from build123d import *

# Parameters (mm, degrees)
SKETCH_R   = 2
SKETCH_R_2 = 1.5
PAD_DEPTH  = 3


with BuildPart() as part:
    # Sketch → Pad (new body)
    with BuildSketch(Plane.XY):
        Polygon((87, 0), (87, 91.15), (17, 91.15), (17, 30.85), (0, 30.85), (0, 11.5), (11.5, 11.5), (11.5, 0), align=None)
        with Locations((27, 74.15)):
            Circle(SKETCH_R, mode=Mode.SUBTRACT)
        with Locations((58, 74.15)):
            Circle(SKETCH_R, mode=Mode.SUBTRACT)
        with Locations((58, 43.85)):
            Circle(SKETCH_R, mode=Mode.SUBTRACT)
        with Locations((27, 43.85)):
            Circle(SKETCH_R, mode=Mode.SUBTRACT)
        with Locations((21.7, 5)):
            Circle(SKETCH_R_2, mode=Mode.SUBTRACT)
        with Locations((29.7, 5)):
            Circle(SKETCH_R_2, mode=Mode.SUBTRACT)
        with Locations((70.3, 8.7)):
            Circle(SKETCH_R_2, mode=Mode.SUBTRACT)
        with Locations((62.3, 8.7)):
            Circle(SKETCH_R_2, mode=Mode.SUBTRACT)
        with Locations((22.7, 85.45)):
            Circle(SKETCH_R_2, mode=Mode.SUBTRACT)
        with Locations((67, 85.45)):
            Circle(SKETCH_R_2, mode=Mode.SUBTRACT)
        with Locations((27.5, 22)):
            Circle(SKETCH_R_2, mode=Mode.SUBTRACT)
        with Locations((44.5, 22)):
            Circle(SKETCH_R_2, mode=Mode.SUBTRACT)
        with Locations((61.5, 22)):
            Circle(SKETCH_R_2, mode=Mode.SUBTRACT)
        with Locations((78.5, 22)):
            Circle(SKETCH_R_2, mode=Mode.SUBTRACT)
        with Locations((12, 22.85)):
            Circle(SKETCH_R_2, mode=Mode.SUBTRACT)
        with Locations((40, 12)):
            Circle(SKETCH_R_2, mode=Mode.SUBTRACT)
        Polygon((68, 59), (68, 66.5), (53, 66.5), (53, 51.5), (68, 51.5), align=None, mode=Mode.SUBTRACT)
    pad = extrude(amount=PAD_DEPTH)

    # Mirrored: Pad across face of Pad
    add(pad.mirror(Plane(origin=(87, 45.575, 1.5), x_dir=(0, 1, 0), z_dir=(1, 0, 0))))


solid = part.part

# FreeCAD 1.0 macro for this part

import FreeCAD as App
import Part
import Sketcher
from FreeCAD import Vector

doc = App.newDocument("Part")
params = doc.addObject("Spreadsheet::Sheet", "Params")
for row, (alias, value) in enumerate([
    ("sketch1_diameter", "3 mm"),
    ("sketch1_diameter2", "4 mm"),
    ("sketch1_width", "70 mm"),
    ("sketch1_width2", "17 mm"),
    ("sketch1_width3", "15 mm"),
    ("pad1_length", "3 mm"),
], start=1):
    params.set(f"A{row}", alias)
    params.set(f"B{row}", "=" + value)
    params.setAlias(f"B{row}", alias)

body = doc.addObject("PartDesign::Body", "Body")

# Sketch on XY plane
sketch1 = doc.addObject("Sketcher::SketchObject", "Sketch")
body.addObject(sketch1)
sketch1.AttachmentSupport = (doc.XY_Plane, [""])
sketch1.MapMode = "FlatFace"
sketch1.addGeometry([
    Part.LineSegment(Vector(87, 0, 0), Vector(87, 91.2, 0)),  # 0
    Part.LineSegment(Vector(87, 91.2, 0), Vector(17, 91.2, 0)),  # 1
    Part.LineSegment(Vector(17, 91.2, 0), Vector(17, 30.9, 0)),  # 2
    Part.LineSegment(Vector(17, 30.9, 0), Vector(0, 30.9, 0)),  # 3
    Part.LineSegment(Vector(0, 30.9, 0), Vector(0, 11.5, 0)),  # 4
    Part.LineSegment(Vector(0, 11.5, 0), Vector(11.5, 11.5, 0)),  # 5
    Part.LineSegment(Vector(11.5, 11.5, 0), Vector(11.5, 0, 0)),  # 6
    Part.LineSegment(Vector(11.5, 0, 0), Vector(87, 0, 0)),  # 7
    Part.Circle(Vector(21.7, 5, 0), Vector(0, 0, 1), 1.5),  # 8
    Part.Circle(Vector(12, 22.9, 0), Vector(0, 0, 1), 1.5),  # 9
    Part.Circle(Vector(27.5, 22, 0), Vector(0, 0, 1), 1.5),  # 10
    Part.Circle(Vector(29.7, 5, 0), Vector(0, 0, 1), 1.5),  # 11
    Part.Circle(Vector(40, 12, 0), Vector(0, 0, 1), 1.5),  # 12
    Part.Circle(Vector(44.5, 22, 0), Vector(0, 0, 1), 1.5),  # 13
    Part.Circle(Vector(27, 43.9, 0), Vector(0, 0, 1), 2),  # 14
    Part.Circle(Vector(62.3, 8.7, 0), Vector(0, 0, 1), 1.5),  # 15
    Part.Circle(Vector(61.5, 22, 0), Vector(0, 0, 1), 1.5),  # 16
    Part.Circle(Vector(70.3, 8.7, 0), Vector(0, 0, 1), 1.5),  # 17
    Part.Circle(Vector(78.5, 22, 0), Vector(0, 0, 1), 1.5),  # 18
    Part.Circle(Vector(58, 43.9, 0), Vector(0, 0, 1), 2),  # 19
    Part.Circle(Vector(27, 74.2, 0), Vector(0, 0, 1), 2),  # 20
    Part.Circle(Vector(22.7, 85.5, 0), Vector(0, 0, 1), 1.5),  # 21
    Part.LineSegment(Vector(68, 66.5, 0), Vector(68, 51.5, 0)),  # 22
    Part.LineSegment(Vector(68, 51.5, 0), Vector(53, 51.5, 0)),  # 23
    Part.LineSegment(Vector(53, 51.5, 0), Vector(53, 66.5, 0)),  # 24
    Part.LineSegment(Vector(53, 66.5, 0), Vector(68, 66.5, 0)),  # 25
    Part.Circle(Vector(58, 74.2, 0), Vector(0, 0, 1), 2),  # 26
    Part.Circle(Vector(67, 85.5, 0), Vector(0, 0, 1), 1.5),  # 27
], False)
sketch1.addConstraint([
    Sketcher.Constraint("Coincident", 0, 2, 1, 1),
    Sketcher.Constraint("Coincident", 1, 2, 2, 1),
    Sketcher.Constraint("Coincident", 2, 2, 3, 1),
    Sketcher.Constraint("Coincident", 3, 2, 4, 1),
    Sketcher.Constraint("Coincident", 4, 2, 5, 1),
    Sketcher.Constraint("Coincident", 5, 2, 6, 1),
    Sketcher.Constraint("Coincident", 6, 2, 7, 1),
    Sketcher.Constraint("Coincident", 7, 2, 0, 1),
    Sketcher.Constraint("Coincident", 22, 2, 23, 1),
    Sketcher.Constraint("Coincident", 23, 2, 24, 1),
    Sketcher.Constraint("Coincident", 24, 2, 25, 1),
    Sketcher.Constraint("Coincident", 25, 2, 22, 1),
    Sketcher.Constraint("Vertical", 0),
    Sketcher.Constraint("Horizontal", 1),
    Sketcher.Constraint("Vertical", 2),
    Sketcher.Constraint("Horizontal", 3),
    Sketcher.Constraint("Vertical", 4),
    Sketcher.Constraint("Horizontal", 5),
    Sketcher.Constraint("Vertical", 6),
    Sketcher.Constraint("Horizontal", 7),
    Sketcher.Constraint("Vertical", 22),
    Sketcher.Constraint("Horizontal", 23),
    Sketcher.Constraint("Vertical", 24),
    Sketcher.Constraint("Horizontal", 25),
    Sketcher.Constraint("Equal", 8, 9),
    Sketcher.Constraint("Equal", 9, 10),
    Sketcher.Constraint("Equal", 10, 11),
    Sketcher.Constraint("Equal", 11, 12),
    Sketcher.Constraint("Equal", 12, 13),
    Sketcher.Constraint("Equal", 13, 15),
    Sketcher.Constraint("Equal", 15, 16),
    Sketcher.Constraint("Equal", 16, 17),
    Sketcher.Constraint("Equal", 17, 18),
    Sketcher.Constraint("Equal", 14, 19),
    Sketcher.Constraint("Equal", 19, 20),
    Sketcher.Constraint("Equal", 18, 21),
    Sketcher.Constraint("Equal", 20, 26),
    Sketcher.Constraint("Equal", 21, 27),
    Sketcher.Constraint("PointOnObject", 3, 2, -2),
    Sketcher.Constraint("PointOnObject", 6, 2, -1),
    Sketcher.Constraint("Horizontal", 8, 3, 11, 3),
    Sketcher.Constraint("Horizontal", 10, 3, 13, 3),
    Sketcher.Constraint("Horizontal", 13, 3, 16, 3),
    Sketcher.Constraint("Horizontal", 15, 3, 17, 3),
    Sketcher.Constraint("Horizontal", 16, 3, 18, 3),
    Sketcher.Constraint("Horizontal", 14, 3, 19, 3),
    Sketcher.Constraint("Horizontal", 20, 3, 26, 3),
    Sketcher.Constraint("Horizontal", 21, 3, 27, 3),
    Sketcher.Constraint("Vertical", 14, 3, 20, 3),
    Sketcher.Constraint("Vertical", 19, 3, 26, 3),
    Sketcher.Constraint("Equal", 5, 6),
    Sketcher.Constraint("Equal", 25, 22),
    Sketcher.Constraint("Diameter", 8, 3.0),
    Sketcher.Constraint("Diameter", 14, 4.0),
    Sketcher.Constraint("DistanceX", 1, 2, 1, 1, 70.0),
    Sketcher.Constraint("DistanceX", 3, 2, 3, 1, 17.0),
    Sketcher.Constraint("DistanceX", 23, 2, 23, 1, 15.0),
    Sketcher.Constraint("DistanceX", 5, 1, 5, 2, 11.5),
    Sketcher.Constraint("DistanceY", 2, 2, 2, 1, 60.3),
    Sketcher.Constraint("DistanceY", -1, 1, 8, 3, 5.0),
    Sketcher.Constraint("DistanceX", -1, 1, 9, 3, 12.0),
    Sketcher.Constraint("DistanceY", -1, 1, 10, 3, 22.0),
    Sketcher.Constraint("DistanceX", -1, 1, 12, 3, 40.0),
    Sketcher.Constraint("DistanceY", -1, 1, 12, 3, 12.0),
    Sketcher.Constraint("DistanceX", -1, 1, 14, 3, 27.0),
    Sketcher.Constraint("DistanceX", -1, 1, 19, 3, 58.0),
    Sketcher.Constraint("DistanceX", -1, 1, 27, 3, 67.0),
    Sketcher.Constraint("DistanceX", -1, 1, 22, 2, 68.0),
    Sketcher.Constraint("DistanceX", 8, 3, 11, 3, 8.0),
    Sketcher.Constraint("DistanceX", 10, 3, 13, 3, 17.0),
    Sketcher.Constraint("DistanceY", 9, 3, 14, 3, 21.0),
    Sketcher.Constraint("DistanceX", 13, 3, 16, 3, 17.0),
    Sketcher.Constraint("DistanceX", 15, 3, 17, 3, 8.0),
    Sketcher.Constraint("DistanceX", 16, 3, 18, 3, 17.0),
    Sketcher.Constraint("DistanceY", 26, 3, 0, 2, 17.0),
    Sketcher.Constraint("DistanceY", 9, 3, 2, 2, 8.0),
    Sketcher.Constraint("DistanceX", 5, 2, 10, 3, 16.0),
    Sketcher.Constraint("DistanceY", 0, 1, 0, 2, 91.15),
    Sketcher.Constraint("DistanceX", -1, 1, 8, 3, 21.7),
    Sketcher.Constraint("DistanceX", -1, 1, 15, 3, 62.3),
    Sketcher.Constraint("DistanceY", -1, 1, 15, 3, 8.7),
    Sketcher.Constraint("DistanceX", -1, 1, 21, 3, 22.7),
    Sketcher.Constraint("DistanceY", -1, 1, 22, 2, 51.5),
    Sketcher.Constraint("DistanceY", 20, 3, 21, 3, 11.3),
])
sketch1.setExpression("Constraints[52]", "Params.sketch1_diameter")
sketch1.setExpression("Constraints[53]", "Params.sketch1_diameter2")
sketch1.setExpression("Constraints[54]", "Params.sketch1_width")
sketch1.setExpression("Constraints[55]", "Params.sketch1_width2")
sketch1.setExpression("Constraints[56]", "Params.sketch1_width3")
pad1 = doc.addObject("PartDesign::Pad", "Pad")
body.addObject(pad1)
pad1.Profile = sketch1
pad1.setExpression("Length", "Params.pad1_length")
doc.recompute()

datumplane = doc.addObject("PartDesign::Plane", "DatumPlane")
body.addObject(datumplane)
datumplane.AttachmentSupport = (doc.YZ_Plane, [""])
datumplane.MapMode = "FlatFace"
datumplane.AttachmentOffset = App.Placement(Vector(0, 0, 87), App.Rotation())
mirrored = doc.addObject("PartDesign::Mirrored", "Mirrored")
body.addObject(mirrored)
mirrored.Originals = [pad1]
mirrored.MirrorPlane = (datumplane, [""])
body.Tip = mirrored

doc.recompute()
